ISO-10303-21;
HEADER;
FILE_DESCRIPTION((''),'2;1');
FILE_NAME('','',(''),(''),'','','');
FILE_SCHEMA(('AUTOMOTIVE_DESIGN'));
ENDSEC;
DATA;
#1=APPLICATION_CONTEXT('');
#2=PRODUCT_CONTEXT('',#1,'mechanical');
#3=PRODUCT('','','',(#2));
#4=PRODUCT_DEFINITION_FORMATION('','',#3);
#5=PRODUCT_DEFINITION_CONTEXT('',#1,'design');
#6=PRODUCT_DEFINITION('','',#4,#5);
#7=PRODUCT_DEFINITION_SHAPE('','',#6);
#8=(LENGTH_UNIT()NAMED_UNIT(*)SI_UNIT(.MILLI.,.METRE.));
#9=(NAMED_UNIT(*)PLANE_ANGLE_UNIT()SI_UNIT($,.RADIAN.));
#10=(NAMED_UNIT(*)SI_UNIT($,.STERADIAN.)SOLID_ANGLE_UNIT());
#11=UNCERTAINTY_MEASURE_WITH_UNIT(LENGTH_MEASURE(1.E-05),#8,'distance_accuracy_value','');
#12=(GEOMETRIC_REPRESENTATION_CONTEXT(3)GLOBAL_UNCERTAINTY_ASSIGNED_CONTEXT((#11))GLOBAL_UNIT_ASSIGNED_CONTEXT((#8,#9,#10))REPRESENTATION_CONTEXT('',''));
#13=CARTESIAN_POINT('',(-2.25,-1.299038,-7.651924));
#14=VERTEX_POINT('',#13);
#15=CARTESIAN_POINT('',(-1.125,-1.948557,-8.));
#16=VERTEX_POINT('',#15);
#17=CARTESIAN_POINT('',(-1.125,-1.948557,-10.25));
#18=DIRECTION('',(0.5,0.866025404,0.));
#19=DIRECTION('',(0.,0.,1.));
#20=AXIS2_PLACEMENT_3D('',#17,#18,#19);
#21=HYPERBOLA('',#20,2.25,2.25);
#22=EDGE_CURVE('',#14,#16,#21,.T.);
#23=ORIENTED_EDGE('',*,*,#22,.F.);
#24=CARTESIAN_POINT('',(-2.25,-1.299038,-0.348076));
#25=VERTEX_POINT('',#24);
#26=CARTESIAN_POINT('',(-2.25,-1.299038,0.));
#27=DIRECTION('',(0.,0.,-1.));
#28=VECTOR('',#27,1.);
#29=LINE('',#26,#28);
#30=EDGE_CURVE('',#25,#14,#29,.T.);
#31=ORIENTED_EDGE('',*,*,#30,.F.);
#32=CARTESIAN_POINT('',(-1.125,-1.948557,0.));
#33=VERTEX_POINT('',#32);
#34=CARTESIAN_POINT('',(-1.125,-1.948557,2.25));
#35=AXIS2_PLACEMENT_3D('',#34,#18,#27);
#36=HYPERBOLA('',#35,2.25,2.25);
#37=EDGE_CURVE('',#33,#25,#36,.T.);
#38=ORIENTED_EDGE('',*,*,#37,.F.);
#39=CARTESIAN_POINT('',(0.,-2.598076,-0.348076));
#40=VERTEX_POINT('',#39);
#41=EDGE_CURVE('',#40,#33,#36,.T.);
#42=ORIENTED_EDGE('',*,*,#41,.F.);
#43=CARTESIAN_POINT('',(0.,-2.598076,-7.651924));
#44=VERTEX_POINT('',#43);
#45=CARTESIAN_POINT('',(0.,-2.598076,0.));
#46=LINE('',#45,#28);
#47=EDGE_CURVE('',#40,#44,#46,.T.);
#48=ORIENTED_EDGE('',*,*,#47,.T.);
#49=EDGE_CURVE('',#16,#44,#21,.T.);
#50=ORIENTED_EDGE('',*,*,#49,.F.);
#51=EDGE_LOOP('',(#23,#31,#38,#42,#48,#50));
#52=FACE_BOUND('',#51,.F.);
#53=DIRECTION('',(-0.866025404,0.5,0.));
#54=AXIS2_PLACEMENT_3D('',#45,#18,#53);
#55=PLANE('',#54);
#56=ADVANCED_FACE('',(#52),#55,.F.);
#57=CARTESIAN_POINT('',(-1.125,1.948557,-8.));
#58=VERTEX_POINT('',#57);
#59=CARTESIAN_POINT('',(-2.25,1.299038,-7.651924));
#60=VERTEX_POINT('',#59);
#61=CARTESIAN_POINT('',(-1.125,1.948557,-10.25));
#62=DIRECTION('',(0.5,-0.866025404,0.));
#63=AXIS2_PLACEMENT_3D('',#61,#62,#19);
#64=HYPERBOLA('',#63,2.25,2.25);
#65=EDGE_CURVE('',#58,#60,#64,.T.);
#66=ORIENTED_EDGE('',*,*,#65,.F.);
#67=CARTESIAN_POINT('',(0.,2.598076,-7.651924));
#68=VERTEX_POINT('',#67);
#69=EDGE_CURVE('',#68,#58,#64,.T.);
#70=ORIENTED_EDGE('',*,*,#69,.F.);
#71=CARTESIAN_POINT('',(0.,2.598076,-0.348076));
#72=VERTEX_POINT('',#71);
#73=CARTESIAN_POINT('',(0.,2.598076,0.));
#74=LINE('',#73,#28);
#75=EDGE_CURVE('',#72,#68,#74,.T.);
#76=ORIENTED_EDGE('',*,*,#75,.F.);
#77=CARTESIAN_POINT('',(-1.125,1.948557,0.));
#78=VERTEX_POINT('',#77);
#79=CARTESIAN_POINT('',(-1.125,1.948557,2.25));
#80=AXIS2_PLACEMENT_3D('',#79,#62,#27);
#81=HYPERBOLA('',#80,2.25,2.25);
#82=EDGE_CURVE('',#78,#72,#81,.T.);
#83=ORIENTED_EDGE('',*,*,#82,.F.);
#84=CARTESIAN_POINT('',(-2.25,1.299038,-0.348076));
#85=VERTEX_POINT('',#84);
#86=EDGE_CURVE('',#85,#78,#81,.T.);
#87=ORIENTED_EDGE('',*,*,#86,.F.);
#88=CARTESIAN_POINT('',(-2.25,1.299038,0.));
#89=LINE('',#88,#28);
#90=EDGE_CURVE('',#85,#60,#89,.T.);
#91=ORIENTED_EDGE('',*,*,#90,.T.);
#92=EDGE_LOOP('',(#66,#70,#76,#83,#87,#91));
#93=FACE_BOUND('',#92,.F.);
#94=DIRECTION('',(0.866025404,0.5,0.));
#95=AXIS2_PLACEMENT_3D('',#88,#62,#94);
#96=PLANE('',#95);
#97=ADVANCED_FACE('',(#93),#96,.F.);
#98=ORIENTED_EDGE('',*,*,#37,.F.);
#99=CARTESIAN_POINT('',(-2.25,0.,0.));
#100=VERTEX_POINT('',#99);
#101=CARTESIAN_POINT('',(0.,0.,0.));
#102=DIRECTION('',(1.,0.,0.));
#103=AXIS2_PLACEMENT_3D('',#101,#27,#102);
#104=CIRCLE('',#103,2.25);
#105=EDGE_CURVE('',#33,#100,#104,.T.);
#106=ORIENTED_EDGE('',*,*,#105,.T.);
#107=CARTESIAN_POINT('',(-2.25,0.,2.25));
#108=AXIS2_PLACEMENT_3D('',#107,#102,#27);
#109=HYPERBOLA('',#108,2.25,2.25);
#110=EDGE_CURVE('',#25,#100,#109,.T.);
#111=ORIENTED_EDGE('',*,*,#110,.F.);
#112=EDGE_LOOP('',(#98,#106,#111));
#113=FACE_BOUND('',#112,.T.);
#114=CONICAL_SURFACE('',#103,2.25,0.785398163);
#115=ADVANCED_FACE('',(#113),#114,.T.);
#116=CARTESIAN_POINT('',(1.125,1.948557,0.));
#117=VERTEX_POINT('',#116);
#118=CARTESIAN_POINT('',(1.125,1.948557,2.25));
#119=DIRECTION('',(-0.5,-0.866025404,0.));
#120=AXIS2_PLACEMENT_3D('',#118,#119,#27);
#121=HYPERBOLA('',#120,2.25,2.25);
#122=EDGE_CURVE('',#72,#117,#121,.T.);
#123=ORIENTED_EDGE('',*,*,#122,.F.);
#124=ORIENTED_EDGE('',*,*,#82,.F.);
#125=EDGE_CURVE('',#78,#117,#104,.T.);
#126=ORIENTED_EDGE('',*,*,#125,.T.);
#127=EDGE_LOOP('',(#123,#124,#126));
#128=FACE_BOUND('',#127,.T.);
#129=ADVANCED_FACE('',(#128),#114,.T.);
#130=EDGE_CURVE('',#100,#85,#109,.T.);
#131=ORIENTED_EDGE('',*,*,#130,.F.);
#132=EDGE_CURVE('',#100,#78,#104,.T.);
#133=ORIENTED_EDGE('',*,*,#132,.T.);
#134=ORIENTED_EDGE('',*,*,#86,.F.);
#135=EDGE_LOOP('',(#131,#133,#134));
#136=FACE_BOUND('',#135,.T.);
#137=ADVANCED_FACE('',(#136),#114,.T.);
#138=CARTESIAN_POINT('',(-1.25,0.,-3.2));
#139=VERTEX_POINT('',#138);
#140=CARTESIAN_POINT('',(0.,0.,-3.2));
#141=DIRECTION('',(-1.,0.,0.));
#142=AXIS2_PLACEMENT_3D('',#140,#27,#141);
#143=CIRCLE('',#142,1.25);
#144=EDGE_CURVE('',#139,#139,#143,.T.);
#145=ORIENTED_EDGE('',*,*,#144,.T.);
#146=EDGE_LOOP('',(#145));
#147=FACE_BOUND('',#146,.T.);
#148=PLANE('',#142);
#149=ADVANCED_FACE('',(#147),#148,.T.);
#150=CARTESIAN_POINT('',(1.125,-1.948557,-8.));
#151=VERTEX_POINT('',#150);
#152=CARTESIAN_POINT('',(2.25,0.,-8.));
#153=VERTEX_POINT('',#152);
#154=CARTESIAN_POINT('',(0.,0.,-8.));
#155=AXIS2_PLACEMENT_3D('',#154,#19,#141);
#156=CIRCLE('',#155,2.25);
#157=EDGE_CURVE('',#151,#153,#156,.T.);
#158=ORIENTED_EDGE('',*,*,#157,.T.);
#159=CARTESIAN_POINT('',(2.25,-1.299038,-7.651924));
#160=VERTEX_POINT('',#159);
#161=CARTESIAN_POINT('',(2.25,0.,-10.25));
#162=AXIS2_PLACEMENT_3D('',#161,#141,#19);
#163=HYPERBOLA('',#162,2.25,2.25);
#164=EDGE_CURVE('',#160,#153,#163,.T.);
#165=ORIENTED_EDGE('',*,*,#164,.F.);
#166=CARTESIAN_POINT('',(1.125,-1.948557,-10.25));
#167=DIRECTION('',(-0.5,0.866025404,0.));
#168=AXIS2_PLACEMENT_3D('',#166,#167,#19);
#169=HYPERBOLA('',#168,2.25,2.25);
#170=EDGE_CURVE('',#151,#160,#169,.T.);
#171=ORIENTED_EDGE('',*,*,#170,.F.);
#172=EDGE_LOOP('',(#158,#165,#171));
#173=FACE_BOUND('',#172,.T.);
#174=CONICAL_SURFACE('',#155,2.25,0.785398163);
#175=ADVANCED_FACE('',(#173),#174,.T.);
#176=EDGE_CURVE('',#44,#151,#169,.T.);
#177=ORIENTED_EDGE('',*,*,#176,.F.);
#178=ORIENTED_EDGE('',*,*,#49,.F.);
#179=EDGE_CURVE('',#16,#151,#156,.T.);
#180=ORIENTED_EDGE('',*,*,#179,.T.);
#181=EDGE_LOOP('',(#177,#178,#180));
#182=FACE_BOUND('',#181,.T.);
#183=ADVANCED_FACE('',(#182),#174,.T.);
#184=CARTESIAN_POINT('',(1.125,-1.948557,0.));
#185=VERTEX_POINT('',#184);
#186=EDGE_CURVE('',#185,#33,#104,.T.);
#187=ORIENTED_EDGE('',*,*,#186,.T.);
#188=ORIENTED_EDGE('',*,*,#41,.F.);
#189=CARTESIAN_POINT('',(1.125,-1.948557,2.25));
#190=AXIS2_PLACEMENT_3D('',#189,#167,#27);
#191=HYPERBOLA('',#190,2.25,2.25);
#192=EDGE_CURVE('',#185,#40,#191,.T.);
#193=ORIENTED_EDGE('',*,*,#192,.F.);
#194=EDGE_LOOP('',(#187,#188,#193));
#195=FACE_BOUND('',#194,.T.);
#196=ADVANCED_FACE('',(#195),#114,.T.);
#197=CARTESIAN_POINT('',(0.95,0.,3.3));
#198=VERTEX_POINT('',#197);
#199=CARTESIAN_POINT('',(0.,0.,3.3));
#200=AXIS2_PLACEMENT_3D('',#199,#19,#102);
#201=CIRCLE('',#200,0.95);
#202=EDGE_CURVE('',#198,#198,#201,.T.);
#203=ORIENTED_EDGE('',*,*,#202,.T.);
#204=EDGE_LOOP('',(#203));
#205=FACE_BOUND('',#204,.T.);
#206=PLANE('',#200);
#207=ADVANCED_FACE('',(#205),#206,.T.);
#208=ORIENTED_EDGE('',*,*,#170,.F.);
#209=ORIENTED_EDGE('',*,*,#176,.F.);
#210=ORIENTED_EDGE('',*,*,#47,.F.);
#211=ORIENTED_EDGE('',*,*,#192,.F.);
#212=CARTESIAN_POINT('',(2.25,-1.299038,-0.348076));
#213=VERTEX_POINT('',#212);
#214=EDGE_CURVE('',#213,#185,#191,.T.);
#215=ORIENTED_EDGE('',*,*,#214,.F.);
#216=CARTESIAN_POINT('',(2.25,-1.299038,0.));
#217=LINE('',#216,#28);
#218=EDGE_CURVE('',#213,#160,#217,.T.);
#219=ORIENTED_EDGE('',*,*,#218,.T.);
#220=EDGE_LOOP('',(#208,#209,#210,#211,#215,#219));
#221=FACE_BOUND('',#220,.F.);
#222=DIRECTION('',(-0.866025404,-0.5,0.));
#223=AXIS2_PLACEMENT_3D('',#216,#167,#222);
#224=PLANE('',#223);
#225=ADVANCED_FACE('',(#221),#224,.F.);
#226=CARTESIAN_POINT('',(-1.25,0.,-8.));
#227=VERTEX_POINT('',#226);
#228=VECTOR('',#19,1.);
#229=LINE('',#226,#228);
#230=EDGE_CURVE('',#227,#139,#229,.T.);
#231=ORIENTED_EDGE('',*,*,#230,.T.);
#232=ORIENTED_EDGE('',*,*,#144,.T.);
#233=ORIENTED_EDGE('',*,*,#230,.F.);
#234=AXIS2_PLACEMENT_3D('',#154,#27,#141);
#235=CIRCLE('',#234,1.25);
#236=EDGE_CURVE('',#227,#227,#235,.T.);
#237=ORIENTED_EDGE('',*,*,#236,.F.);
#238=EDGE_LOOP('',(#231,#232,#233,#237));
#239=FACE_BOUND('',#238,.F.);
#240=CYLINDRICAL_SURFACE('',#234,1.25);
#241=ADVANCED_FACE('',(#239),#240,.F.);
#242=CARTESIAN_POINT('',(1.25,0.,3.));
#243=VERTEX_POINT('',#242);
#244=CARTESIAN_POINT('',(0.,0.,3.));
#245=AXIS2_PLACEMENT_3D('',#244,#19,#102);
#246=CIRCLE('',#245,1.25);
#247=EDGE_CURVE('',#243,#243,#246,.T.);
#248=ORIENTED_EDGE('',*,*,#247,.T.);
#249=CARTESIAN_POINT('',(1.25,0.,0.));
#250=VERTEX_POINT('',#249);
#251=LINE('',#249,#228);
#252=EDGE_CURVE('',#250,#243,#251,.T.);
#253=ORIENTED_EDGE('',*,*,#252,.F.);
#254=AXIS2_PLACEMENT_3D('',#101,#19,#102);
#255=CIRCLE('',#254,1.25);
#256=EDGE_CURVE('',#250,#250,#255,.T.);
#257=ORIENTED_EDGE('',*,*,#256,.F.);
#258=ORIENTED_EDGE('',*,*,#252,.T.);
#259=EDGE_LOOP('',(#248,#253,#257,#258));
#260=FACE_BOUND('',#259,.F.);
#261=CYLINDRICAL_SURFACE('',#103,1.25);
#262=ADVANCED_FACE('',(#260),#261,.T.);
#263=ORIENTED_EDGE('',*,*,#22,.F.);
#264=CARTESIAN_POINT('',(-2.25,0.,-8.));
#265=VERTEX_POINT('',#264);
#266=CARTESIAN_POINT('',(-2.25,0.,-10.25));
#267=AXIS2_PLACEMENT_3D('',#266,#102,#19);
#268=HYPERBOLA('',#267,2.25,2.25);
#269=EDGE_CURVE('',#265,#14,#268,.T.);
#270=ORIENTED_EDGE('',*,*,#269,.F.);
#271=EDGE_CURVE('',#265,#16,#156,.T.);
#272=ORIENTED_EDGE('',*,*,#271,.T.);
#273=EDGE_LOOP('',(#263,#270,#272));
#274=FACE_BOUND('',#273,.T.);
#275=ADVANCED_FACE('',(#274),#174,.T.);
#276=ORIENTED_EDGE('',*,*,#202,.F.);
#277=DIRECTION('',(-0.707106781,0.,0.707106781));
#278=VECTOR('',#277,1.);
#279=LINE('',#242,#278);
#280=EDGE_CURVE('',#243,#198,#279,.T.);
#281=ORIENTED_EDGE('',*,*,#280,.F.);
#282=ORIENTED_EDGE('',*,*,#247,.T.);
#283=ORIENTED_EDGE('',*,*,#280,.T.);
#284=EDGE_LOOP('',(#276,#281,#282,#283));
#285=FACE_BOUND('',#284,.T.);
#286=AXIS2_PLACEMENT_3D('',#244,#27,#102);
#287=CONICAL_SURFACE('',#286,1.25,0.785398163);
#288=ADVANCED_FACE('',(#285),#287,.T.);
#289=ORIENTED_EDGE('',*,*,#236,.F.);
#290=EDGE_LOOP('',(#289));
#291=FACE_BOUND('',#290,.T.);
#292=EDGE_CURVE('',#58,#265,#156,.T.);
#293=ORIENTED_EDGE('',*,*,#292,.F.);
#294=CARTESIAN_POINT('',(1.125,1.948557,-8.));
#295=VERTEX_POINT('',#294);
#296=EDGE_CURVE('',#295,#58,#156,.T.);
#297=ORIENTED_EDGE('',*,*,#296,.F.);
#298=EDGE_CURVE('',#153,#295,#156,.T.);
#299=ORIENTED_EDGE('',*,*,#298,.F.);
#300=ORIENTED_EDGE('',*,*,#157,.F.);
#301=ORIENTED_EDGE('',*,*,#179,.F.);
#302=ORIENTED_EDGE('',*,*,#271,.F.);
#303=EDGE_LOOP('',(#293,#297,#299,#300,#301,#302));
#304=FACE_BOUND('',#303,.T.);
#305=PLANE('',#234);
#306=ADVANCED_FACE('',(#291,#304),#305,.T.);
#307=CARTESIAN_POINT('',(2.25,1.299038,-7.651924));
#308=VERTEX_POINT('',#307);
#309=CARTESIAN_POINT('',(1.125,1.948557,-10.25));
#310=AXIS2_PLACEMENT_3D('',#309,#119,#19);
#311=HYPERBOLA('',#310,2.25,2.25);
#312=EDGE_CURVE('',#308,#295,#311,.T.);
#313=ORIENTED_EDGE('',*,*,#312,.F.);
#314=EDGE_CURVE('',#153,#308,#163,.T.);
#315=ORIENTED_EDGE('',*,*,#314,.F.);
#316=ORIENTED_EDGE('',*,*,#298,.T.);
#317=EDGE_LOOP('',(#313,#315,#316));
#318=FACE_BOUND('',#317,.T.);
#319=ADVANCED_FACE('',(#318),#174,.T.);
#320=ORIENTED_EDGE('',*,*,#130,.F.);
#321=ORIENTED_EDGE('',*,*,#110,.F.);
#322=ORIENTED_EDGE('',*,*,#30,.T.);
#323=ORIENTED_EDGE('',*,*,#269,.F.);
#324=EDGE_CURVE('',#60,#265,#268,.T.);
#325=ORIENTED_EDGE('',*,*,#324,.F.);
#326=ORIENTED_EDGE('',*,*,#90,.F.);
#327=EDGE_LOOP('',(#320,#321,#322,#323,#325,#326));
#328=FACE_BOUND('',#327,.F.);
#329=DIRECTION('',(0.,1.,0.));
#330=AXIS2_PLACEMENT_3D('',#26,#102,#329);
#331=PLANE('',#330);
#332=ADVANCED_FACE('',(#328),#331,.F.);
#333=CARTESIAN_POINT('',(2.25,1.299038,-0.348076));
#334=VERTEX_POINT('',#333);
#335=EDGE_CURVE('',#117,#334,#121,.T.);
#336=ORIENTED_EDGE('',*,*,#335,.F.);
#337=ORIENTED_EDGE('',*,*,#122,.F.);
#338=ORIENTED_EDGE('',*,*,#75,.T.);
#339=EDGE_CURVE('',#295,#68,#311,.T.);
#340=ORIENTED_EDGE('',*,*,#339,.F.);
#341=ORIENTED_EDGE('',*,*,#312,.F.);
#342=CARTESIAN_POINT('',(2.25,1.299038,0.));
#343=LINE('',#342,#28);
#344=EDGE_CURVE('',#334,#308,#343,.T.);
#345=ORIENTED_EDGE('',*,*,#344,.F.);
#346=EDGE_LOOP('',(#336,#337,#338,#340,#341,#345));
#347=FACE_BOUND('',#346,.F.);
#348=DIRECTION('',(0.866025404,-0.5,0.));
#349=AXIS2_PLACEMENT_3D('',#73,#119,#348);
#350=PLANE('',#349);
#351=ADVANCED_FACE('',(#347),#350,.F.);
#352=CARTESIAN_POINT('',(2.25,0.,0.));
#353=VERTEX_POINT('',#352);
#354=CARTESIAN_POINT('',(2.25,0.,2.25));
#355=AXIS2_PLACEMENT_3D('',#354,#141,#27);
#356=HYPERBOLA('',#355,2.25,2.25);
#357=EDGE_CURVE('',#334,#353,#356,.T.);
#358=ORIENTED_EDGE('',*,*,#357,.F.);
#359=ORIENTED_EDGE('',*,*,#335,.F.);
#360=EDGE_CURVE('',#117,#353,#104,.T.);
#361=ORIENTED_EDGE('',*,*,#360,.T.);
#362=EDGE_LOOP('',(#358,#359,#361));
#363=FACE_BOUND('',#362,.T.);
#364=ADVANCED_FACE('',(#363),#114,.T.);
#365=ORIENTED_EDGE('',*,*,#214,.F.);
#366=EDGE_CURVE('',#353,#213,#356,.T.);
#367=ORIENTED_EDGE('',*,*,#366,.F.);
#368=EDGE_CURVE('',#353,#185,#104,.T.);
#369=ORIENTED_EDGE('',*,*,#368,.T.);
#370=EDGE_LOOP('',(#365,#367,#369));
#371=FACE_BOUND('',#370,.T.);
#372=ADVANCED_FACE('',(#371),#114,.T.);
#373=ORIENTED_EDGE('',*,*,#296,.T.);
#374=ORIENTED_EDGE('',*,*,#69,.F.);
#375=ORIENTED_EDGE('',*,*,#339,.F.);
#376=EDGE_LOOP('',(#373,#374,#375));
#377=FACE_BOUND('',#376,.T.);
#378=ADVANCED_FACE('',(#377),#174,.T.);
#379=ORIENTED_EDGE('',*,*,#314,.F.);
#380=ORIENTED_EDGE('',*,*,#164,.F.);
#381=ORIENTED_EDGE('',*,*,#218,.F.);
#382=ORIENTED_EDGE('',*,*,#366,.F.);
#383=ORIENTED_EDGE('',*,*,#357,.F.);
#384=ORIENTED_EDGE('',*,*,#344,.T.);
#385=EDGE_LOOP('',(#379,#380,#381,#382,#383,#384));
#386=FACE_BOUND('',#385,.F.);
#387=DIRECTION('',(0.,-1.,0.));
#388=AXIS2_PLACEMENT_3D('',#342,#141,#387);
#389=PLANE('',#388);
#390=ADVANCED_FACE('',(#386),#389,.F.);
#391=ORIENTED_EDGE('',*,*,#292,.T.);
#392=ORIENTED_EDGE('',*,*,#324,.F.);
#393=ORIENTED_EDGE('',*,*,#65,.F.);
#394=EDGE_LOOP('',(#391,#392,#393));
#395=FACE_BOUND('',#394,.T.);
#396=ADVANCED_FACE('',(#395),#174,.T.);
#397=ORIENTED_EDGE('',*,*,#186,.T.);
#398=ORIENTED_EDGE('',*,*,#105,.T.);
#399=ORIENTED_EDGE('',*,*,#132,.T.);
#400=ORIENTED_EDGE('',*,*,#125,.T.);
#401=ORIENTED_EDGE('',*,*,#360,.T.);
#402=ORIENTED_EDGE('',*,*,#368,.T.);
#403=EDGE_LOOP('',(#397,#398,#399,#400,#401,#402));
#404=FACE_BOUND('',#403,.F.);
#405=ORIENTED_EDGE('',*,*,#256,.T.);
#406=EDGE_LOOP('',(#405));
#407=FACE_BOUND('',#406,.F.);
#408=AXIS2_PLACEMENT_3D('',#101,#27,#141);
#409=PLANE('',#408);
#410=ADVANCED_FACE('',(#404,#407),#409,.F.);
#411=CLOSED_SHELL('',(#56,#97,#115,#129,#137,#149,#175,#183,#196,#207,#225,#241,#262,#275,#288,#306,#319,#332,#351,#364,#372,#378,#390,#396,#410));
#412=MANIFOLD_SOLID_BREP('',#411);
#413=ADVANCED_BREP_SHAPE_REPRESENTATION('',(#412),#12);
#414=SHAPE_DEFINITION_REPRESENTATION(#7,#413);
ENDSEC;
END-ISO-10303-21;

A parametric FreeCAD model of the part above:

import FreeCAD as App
import Part
import Sketcher

V = App.Vector
Q = App.Units.Quantity


def edges_at(feature, points):
    """Names of the edges that pass closest to the given points."""
    edges = feature.Shape.Edges
    near = lambda p: min(range(len(edges)), key=lambda i: edges[i].distToShape(Part.Vertex(*p))[0])
    return sorted({f"Edge{near(p) + 1}" for p in points})

doc = App.newDocument("Part")
body = doc.addObject("PartDesign::Body", "Body")

# Sketch on XY plane
sketch1 = body.newObject("Sketcher::SketchObject", "Sketch")
sketch1.AttachmentSupport = (doc.getObject("XY_Plane"), [""])
sketch1.MapMode = "FlatFace"
sketch1.addGeometry(Part.Circle(V(0, 0, 0), V(0, 0, 1), 1.2), False)
sketch1.addConstraint([
    Sketcher.Constraint("Coincident", 0, 3, -1, 1),
    Sketcher.Constraint("Diameter", 0, 2.5),
])
pad1 = body.newObject("PartDesign::Pad", "Pad")
pad1.Profile = sketch1
pad1.Length = 3.3

# Sketch on XY plane
sketch2 = body.newObject("Sketcher::SketchObject", "Sketch001")
sketch2.AttachmentSupport = (doc.getObject("XY_Plane"), [""])
sketch2.MapMode = "FlatFace"
sketch2.addGeometry([
    Part.LineSegment(V(0, 2.6, 0), V(2.2, 1.3, 0)),  # 0
    Part.LineSegment(V(2.2, 1.3, 0), V(2.2, -1.3, 0)),  # 1
    Part.LineSegment(V(2.2, -1.3, 0), V(0, -2.6, 0)),  # 2
    Part.LineSegment(V(0, -2.6, 0), V(-2.2, -1.3, 0)),  # 3
    Part.LineSegment(V(-2.2, -1.3, 0), V(-2.2, 1.3, 0)),  # 4
    Part.LineSegment(V(-2.2, 1.3, 0), V(0, 2.6, 0)),  # 5
], False)
sketch2.addConstraint([
    Sketcher.Constraint("Coincident", 0, 2, 1, 1),
    Sketcher.Constraint("Coincident", 1, 2, 2, 1),
    Sketcher.Constraint("Coincident", 2, 2, 3, 1),
    Sketcher.Constraint("Coincident", 3, 2, 4, 1),
    Sketcher.Constraint("Coincident", 4, 2, 5, 1),
    Sketcher.Constraint("Coincident", 5, 2, 0, 1),
    Sketcher.Constraint("Vertical", 1),
    Sketcher.Constraint("Vertical", 4),
    Sketcher.Constraint("Symmetric", 0, 2, 3, 2, -1, 1),
    Sketcher.Constraint("Symmetric", 2, 2, 5, 2, -1, 1),
    Sketcher.Constraint("PointOnObject", 2, 2, -2),
    Sketcher.Constraint("Parallel", 2, 5),
    Sketcher.Constraint("Horizontal", 1, 2, 3, 2),
    Sketcher.Constraint("Angle", 0, Q("-30 deg")),
    Sketcher.Constraint("DistanceX", 3, 2, 1, 2, 4.5),
    Sketcher.Constraint("DistanceY", 1, 2, 1, 1, 2.598076),
])
pad2 = body.newObject("PartDesign::Pad", "Pad001")
pad2.Profile = sketch2
pad2.Length = 8
pad2.Reversed = True

# Sketch on XY plane
sketch3 = body.newObject("Sketcher::SketchObject", "Sketch002")
sketch3.AttachmentSupport = (doc.getObject("XY_Plane"), [""])
sketch3.MapMode = "FlatFace"
sketch3.AttachmentOffset = App.Placement(V(0, 0, -8), App.Rotation())
sketch3.addGeometry(Part.Circle(V(0, 0, 0), V(0, 0, 1), 1.2), False)
sketch3.addConstraint([
    Sketcher.Constraint("Coincident", 0, 3, -1, 1),
    Sketcher.Constraint("Diameter", 0, 2.5),
])
pocket1 = body.newObject("PartDesign::Pocket", "Pocket")
pocket1.Profile = sketch3
pocket1.Length = 4.8
pocket1.Reversed = True

# Sketch on XY plane
sketch4 = body.newObject("Sketcher::SketchObject", "Sketch003")
sketch4.AttachmentSupport = (doc.getObject("XY_Plane"), [""])
sketch4.MapMode = "FlatFace"
sketch4.AttachmentOffset = App.Placement(V(0, 0, -8), App.Rotation())
sketch4.addGeometry([
    Part.LineSegment(V(16.9, 17.2, 0), V(16.9, -17.2, 0)),  # 0
    Part.LineSegment(V(16.9, -17.2, 0), V(-16.9, -17.2, 0)),  # 1
    Part.LineSegment(V(-16.9, -17.2, 0), V(-16.9, 17.2, 0)),  # 2
    Part.LineSegment(V(-16.9, 17.2, 0), V(16.9, 17.2, 0)),  # 3
    Part.Circle(V(0, 0, 0), V(0, 0, 1), 2.2),  # 4
], False)
sketch4.addConstraint([
    Sketcher.Constraint("Coincident", 0, 2, 1, 1),
    Sketcher.Constraint("Coincident", 1, 2, 2, 1),
    Sketcher.Constraint("Coincident", 2, 2, 3, 1),
    Sketcher.Constraint("Coincident", 3, 2, 0, 1),
    Sketcher.Constraint("Vertical", 0),
    Sketcher.Constraint("Horizontal", 1),
    Sketcher.Constraint("Vertical", 2),
    Sketcher.Constraint("Horizontal", 3),
    Sketcher.Constraint("Coincident", 4, 3, -1, 1),
    Sketcher.Constraint("Symmetric", 0, 2, 2, 2, -1, 1),
    Sketcher.Constraint("Diameter", 4, 4.5),
    Sketcher.Constraint("DistanceX", 1, 2, 1, 1, 33.746),
    Sketcher.Constraint("DistanceY", 0, 2, 0, 1, 34.442),
])
pocket2 = body.newObject("PartDesign::Pocket", "Pocket001")
pocket2.Profile = sketch4
pocket2.Length = 12.3
pocket2.Reversed = True
pocket2.TaperAngle = 45

# Sketch on XY plane
sketch5 = body.newObject("Sketcher::SketchObject", "Sketch004")
sketch5.AttachmentSupport = (doc.getObject("XY_Plane"), [""])
sketch5.MapMode = "FlatFace"
sketch5.addGeometry([
    Part.LineSegment(V(-13.6, 13.9, 0), V(-13.6, -13.9, 0)),  # 0
    Part.LineSegment(V(-13.6, -13.9, 0), V(13.6, -13.9, 0)),  # 1
    Part.LineSegment(V(13.6, -13.9, 0), V(13.6, 13.9, 0)),  # 2
    Part.LineSegment(V(13.6, 13.9, 0), V(-13.6, 13.9, 0)),  # 3
    Part.Circle(V(0, 0, 0), V(0, 0, 1), 2.2),  # 4
], False)
sketch5.addConstraint([
    Sketcher.Constraint("Coincident", 0, 2, 1, 1),
    Sketcher.Constraint("Coincident", 1, 2, 2, 1),
    Sketcher.Constraint("Coincident", 2, 2, 3, 1),
    Sketcher.Constraint("Coincident", 3, 2, 0, 1),
    Sketcher.Constraint("Vertical", 0),
    Sketcher.Constraint("Horizontal", 1),
    Sketcher.Constraint("Vertical", 2),
    Sketcher.Constraint("Horizontal", 3),
    Sketcher.Constraint("Coincident", 4, 3, -1, 1),
    Sketcher.Constraint("Symmetric", 0, 2, 2, 2, -1, 1),
    Sketcher.Constraint("Diameter", 4, 4.5),
    Sketcher.Constraint("DistanceX", 1, 1, 1, 2, 27.146),
    Sketcher.Constraint("DistanceY", 0, 2, 0, 1, 27.842),
])
pocket3 = body.newObject("PartDesign::Pocket", "Pocket002")
pocket3.Profile = sketch5
pocket3.Length = 9
pocket3.TaperAngle = 45
doc.recompute()

chamfer = body.newObject("PartDesign::Chamfer", "Chamfer")
chamfer.Base = (pocket3, edges_at(pocket3, [(-1.25, 0, 3.3)]))
chamfer.Size = 0.3

doc.recompute()
